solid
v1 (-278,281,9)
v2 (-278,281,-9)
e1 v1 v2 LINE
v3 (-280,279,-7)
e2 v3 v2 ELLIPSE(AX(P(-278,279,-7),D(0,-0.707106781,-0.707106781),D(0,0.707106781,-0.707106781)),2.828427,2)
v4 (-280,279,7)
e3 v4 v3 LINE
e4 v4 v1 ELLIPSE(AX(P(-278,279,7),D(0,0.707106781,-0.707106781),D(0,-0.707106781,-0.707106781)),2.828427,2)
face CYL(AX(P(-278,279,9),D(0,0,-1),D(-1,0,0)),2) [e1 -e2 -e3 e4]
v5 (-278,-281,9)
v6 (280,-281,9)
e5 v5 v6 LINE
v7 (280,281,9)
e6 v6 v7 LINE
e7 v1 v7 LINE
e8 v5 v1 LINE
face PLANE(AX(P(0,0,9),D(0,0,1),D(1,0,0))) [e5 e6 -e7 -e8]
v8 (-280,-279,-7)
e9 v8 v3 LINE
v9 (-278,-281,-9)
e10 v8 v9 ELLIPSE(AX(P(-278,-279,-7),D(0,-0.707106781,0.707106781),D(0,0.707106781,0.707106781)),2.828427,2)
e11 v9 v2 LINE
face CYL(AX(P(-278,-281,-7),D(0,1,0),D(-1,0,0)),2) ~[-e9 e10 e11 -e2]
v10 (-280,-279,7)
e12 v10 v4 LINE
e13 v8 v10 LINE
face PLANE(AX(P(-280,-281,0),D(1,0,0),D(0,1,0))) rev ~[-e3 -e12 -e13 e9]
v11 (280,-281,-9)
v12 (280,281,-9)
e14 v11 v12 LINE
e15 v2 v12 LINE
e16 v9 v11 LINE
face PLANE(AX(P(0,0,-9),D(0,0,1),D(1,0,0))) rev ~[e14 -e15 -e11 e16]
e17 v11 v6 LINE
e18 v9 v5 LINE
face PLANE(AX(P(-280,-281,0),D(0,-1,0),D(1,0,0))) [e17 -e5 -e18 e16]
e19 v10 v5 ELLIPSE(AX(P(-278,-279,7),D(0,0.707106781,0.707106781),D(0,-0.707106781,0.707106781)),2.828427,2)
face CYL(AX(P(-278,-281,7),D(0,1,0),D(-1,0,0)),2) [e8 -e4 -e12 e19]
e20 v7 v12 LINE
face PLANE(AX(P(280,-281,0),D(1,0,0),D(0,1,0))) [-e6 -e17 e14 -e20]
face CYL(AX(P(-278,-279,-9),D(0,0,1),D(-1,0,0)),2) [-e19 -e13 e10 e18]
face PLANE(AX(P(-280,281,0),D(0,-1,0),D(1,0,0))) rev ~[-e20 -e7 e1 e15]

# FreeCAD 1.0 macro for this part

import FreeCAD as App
import Part
import Sketcher
Q = App.Units.Quantity


def edges_at(feature, points):
    """Names of the edges that pass closest to the given points."""
    edges = feature.Shape.Edges
    near = lambda p: min(range(len(edges)), key=lambda i: edges[i].distToShape(Part.Vertex(*p))[0])
    return sorted({f"Edge{near(p) + 1}" for p in points})

doc = App.newDocument("Part")
body = doc.addObject("PartDesign::Body", "Body")

# Sketch on XY plane
sketch1 = body.newObject("Sketcher::SketchObject", "Sketch")
sketch1.AttachmentSupport = (doc.getObject("XY_Plane"), [""])
sketch1.MapMode = "FlatFace"
sketch1.addGeometry([
    Part.LineSegment(App.Vector(-280, 281, 0), App.Vector(-280, -281, 0)),
    Part.LineSegment(App.Vector(-280, -281, 0), App.Vector(280, -281, 0)),
    Part.LineSegment(App.Vector(280, -281, 0), App.Vector(280, 281, 0)),
    Part.LineSegment(App.Vector(280, 281, 0), App.Vector(-280, 281, 0)),
], False)
sketch1.addConstraint([
    Sketcher.Constraint("Coincident", 0, 2, 1, 1),
    Sketcher.Constraint("Coincident", 1, 2, 2, 1),
    Sketcher.Constraint("Coincident", 2, 2, 3, 1),
    Sketcher.Constraint("Coincident", 3, 2, 0, 1),
    Sketcher.Constraint("Vertical", 0),
    Sketcher.Constraint("Horizontal", 1),
    Sketcher.Constraint("Vertical", 2),
    Sketcher.Constraint("Horizontal", 3),
    Sketcher.Constraint("Symmetric", 0, 2, 2, 2, -1, 1),
    Sketcher.Constraint("DistanceX", 1, 1, 1, 2, Q("560 mm")),
    Sketcher.Constraint("DistanceY", 0, 2, 0, 1, Q("562 mm")),
])
pad1 = body.newObject("PartDesign::Pad", "Pad")
pad1.Profile = sketch1
pad1.Length = 18
pad1.Midplane = True
doc.recompute()

fillet = body.newObject("PartDesign::Fillet", "Fillet")
fillet.Base = (pad1, edges_at(pad1, [
    (-280, 281, 0),
    (-280, 0, -9),
    (-280, -281, 0),
    (-280, 0, 9),
]))
fillet.Radius = 2

doc.recompute()
